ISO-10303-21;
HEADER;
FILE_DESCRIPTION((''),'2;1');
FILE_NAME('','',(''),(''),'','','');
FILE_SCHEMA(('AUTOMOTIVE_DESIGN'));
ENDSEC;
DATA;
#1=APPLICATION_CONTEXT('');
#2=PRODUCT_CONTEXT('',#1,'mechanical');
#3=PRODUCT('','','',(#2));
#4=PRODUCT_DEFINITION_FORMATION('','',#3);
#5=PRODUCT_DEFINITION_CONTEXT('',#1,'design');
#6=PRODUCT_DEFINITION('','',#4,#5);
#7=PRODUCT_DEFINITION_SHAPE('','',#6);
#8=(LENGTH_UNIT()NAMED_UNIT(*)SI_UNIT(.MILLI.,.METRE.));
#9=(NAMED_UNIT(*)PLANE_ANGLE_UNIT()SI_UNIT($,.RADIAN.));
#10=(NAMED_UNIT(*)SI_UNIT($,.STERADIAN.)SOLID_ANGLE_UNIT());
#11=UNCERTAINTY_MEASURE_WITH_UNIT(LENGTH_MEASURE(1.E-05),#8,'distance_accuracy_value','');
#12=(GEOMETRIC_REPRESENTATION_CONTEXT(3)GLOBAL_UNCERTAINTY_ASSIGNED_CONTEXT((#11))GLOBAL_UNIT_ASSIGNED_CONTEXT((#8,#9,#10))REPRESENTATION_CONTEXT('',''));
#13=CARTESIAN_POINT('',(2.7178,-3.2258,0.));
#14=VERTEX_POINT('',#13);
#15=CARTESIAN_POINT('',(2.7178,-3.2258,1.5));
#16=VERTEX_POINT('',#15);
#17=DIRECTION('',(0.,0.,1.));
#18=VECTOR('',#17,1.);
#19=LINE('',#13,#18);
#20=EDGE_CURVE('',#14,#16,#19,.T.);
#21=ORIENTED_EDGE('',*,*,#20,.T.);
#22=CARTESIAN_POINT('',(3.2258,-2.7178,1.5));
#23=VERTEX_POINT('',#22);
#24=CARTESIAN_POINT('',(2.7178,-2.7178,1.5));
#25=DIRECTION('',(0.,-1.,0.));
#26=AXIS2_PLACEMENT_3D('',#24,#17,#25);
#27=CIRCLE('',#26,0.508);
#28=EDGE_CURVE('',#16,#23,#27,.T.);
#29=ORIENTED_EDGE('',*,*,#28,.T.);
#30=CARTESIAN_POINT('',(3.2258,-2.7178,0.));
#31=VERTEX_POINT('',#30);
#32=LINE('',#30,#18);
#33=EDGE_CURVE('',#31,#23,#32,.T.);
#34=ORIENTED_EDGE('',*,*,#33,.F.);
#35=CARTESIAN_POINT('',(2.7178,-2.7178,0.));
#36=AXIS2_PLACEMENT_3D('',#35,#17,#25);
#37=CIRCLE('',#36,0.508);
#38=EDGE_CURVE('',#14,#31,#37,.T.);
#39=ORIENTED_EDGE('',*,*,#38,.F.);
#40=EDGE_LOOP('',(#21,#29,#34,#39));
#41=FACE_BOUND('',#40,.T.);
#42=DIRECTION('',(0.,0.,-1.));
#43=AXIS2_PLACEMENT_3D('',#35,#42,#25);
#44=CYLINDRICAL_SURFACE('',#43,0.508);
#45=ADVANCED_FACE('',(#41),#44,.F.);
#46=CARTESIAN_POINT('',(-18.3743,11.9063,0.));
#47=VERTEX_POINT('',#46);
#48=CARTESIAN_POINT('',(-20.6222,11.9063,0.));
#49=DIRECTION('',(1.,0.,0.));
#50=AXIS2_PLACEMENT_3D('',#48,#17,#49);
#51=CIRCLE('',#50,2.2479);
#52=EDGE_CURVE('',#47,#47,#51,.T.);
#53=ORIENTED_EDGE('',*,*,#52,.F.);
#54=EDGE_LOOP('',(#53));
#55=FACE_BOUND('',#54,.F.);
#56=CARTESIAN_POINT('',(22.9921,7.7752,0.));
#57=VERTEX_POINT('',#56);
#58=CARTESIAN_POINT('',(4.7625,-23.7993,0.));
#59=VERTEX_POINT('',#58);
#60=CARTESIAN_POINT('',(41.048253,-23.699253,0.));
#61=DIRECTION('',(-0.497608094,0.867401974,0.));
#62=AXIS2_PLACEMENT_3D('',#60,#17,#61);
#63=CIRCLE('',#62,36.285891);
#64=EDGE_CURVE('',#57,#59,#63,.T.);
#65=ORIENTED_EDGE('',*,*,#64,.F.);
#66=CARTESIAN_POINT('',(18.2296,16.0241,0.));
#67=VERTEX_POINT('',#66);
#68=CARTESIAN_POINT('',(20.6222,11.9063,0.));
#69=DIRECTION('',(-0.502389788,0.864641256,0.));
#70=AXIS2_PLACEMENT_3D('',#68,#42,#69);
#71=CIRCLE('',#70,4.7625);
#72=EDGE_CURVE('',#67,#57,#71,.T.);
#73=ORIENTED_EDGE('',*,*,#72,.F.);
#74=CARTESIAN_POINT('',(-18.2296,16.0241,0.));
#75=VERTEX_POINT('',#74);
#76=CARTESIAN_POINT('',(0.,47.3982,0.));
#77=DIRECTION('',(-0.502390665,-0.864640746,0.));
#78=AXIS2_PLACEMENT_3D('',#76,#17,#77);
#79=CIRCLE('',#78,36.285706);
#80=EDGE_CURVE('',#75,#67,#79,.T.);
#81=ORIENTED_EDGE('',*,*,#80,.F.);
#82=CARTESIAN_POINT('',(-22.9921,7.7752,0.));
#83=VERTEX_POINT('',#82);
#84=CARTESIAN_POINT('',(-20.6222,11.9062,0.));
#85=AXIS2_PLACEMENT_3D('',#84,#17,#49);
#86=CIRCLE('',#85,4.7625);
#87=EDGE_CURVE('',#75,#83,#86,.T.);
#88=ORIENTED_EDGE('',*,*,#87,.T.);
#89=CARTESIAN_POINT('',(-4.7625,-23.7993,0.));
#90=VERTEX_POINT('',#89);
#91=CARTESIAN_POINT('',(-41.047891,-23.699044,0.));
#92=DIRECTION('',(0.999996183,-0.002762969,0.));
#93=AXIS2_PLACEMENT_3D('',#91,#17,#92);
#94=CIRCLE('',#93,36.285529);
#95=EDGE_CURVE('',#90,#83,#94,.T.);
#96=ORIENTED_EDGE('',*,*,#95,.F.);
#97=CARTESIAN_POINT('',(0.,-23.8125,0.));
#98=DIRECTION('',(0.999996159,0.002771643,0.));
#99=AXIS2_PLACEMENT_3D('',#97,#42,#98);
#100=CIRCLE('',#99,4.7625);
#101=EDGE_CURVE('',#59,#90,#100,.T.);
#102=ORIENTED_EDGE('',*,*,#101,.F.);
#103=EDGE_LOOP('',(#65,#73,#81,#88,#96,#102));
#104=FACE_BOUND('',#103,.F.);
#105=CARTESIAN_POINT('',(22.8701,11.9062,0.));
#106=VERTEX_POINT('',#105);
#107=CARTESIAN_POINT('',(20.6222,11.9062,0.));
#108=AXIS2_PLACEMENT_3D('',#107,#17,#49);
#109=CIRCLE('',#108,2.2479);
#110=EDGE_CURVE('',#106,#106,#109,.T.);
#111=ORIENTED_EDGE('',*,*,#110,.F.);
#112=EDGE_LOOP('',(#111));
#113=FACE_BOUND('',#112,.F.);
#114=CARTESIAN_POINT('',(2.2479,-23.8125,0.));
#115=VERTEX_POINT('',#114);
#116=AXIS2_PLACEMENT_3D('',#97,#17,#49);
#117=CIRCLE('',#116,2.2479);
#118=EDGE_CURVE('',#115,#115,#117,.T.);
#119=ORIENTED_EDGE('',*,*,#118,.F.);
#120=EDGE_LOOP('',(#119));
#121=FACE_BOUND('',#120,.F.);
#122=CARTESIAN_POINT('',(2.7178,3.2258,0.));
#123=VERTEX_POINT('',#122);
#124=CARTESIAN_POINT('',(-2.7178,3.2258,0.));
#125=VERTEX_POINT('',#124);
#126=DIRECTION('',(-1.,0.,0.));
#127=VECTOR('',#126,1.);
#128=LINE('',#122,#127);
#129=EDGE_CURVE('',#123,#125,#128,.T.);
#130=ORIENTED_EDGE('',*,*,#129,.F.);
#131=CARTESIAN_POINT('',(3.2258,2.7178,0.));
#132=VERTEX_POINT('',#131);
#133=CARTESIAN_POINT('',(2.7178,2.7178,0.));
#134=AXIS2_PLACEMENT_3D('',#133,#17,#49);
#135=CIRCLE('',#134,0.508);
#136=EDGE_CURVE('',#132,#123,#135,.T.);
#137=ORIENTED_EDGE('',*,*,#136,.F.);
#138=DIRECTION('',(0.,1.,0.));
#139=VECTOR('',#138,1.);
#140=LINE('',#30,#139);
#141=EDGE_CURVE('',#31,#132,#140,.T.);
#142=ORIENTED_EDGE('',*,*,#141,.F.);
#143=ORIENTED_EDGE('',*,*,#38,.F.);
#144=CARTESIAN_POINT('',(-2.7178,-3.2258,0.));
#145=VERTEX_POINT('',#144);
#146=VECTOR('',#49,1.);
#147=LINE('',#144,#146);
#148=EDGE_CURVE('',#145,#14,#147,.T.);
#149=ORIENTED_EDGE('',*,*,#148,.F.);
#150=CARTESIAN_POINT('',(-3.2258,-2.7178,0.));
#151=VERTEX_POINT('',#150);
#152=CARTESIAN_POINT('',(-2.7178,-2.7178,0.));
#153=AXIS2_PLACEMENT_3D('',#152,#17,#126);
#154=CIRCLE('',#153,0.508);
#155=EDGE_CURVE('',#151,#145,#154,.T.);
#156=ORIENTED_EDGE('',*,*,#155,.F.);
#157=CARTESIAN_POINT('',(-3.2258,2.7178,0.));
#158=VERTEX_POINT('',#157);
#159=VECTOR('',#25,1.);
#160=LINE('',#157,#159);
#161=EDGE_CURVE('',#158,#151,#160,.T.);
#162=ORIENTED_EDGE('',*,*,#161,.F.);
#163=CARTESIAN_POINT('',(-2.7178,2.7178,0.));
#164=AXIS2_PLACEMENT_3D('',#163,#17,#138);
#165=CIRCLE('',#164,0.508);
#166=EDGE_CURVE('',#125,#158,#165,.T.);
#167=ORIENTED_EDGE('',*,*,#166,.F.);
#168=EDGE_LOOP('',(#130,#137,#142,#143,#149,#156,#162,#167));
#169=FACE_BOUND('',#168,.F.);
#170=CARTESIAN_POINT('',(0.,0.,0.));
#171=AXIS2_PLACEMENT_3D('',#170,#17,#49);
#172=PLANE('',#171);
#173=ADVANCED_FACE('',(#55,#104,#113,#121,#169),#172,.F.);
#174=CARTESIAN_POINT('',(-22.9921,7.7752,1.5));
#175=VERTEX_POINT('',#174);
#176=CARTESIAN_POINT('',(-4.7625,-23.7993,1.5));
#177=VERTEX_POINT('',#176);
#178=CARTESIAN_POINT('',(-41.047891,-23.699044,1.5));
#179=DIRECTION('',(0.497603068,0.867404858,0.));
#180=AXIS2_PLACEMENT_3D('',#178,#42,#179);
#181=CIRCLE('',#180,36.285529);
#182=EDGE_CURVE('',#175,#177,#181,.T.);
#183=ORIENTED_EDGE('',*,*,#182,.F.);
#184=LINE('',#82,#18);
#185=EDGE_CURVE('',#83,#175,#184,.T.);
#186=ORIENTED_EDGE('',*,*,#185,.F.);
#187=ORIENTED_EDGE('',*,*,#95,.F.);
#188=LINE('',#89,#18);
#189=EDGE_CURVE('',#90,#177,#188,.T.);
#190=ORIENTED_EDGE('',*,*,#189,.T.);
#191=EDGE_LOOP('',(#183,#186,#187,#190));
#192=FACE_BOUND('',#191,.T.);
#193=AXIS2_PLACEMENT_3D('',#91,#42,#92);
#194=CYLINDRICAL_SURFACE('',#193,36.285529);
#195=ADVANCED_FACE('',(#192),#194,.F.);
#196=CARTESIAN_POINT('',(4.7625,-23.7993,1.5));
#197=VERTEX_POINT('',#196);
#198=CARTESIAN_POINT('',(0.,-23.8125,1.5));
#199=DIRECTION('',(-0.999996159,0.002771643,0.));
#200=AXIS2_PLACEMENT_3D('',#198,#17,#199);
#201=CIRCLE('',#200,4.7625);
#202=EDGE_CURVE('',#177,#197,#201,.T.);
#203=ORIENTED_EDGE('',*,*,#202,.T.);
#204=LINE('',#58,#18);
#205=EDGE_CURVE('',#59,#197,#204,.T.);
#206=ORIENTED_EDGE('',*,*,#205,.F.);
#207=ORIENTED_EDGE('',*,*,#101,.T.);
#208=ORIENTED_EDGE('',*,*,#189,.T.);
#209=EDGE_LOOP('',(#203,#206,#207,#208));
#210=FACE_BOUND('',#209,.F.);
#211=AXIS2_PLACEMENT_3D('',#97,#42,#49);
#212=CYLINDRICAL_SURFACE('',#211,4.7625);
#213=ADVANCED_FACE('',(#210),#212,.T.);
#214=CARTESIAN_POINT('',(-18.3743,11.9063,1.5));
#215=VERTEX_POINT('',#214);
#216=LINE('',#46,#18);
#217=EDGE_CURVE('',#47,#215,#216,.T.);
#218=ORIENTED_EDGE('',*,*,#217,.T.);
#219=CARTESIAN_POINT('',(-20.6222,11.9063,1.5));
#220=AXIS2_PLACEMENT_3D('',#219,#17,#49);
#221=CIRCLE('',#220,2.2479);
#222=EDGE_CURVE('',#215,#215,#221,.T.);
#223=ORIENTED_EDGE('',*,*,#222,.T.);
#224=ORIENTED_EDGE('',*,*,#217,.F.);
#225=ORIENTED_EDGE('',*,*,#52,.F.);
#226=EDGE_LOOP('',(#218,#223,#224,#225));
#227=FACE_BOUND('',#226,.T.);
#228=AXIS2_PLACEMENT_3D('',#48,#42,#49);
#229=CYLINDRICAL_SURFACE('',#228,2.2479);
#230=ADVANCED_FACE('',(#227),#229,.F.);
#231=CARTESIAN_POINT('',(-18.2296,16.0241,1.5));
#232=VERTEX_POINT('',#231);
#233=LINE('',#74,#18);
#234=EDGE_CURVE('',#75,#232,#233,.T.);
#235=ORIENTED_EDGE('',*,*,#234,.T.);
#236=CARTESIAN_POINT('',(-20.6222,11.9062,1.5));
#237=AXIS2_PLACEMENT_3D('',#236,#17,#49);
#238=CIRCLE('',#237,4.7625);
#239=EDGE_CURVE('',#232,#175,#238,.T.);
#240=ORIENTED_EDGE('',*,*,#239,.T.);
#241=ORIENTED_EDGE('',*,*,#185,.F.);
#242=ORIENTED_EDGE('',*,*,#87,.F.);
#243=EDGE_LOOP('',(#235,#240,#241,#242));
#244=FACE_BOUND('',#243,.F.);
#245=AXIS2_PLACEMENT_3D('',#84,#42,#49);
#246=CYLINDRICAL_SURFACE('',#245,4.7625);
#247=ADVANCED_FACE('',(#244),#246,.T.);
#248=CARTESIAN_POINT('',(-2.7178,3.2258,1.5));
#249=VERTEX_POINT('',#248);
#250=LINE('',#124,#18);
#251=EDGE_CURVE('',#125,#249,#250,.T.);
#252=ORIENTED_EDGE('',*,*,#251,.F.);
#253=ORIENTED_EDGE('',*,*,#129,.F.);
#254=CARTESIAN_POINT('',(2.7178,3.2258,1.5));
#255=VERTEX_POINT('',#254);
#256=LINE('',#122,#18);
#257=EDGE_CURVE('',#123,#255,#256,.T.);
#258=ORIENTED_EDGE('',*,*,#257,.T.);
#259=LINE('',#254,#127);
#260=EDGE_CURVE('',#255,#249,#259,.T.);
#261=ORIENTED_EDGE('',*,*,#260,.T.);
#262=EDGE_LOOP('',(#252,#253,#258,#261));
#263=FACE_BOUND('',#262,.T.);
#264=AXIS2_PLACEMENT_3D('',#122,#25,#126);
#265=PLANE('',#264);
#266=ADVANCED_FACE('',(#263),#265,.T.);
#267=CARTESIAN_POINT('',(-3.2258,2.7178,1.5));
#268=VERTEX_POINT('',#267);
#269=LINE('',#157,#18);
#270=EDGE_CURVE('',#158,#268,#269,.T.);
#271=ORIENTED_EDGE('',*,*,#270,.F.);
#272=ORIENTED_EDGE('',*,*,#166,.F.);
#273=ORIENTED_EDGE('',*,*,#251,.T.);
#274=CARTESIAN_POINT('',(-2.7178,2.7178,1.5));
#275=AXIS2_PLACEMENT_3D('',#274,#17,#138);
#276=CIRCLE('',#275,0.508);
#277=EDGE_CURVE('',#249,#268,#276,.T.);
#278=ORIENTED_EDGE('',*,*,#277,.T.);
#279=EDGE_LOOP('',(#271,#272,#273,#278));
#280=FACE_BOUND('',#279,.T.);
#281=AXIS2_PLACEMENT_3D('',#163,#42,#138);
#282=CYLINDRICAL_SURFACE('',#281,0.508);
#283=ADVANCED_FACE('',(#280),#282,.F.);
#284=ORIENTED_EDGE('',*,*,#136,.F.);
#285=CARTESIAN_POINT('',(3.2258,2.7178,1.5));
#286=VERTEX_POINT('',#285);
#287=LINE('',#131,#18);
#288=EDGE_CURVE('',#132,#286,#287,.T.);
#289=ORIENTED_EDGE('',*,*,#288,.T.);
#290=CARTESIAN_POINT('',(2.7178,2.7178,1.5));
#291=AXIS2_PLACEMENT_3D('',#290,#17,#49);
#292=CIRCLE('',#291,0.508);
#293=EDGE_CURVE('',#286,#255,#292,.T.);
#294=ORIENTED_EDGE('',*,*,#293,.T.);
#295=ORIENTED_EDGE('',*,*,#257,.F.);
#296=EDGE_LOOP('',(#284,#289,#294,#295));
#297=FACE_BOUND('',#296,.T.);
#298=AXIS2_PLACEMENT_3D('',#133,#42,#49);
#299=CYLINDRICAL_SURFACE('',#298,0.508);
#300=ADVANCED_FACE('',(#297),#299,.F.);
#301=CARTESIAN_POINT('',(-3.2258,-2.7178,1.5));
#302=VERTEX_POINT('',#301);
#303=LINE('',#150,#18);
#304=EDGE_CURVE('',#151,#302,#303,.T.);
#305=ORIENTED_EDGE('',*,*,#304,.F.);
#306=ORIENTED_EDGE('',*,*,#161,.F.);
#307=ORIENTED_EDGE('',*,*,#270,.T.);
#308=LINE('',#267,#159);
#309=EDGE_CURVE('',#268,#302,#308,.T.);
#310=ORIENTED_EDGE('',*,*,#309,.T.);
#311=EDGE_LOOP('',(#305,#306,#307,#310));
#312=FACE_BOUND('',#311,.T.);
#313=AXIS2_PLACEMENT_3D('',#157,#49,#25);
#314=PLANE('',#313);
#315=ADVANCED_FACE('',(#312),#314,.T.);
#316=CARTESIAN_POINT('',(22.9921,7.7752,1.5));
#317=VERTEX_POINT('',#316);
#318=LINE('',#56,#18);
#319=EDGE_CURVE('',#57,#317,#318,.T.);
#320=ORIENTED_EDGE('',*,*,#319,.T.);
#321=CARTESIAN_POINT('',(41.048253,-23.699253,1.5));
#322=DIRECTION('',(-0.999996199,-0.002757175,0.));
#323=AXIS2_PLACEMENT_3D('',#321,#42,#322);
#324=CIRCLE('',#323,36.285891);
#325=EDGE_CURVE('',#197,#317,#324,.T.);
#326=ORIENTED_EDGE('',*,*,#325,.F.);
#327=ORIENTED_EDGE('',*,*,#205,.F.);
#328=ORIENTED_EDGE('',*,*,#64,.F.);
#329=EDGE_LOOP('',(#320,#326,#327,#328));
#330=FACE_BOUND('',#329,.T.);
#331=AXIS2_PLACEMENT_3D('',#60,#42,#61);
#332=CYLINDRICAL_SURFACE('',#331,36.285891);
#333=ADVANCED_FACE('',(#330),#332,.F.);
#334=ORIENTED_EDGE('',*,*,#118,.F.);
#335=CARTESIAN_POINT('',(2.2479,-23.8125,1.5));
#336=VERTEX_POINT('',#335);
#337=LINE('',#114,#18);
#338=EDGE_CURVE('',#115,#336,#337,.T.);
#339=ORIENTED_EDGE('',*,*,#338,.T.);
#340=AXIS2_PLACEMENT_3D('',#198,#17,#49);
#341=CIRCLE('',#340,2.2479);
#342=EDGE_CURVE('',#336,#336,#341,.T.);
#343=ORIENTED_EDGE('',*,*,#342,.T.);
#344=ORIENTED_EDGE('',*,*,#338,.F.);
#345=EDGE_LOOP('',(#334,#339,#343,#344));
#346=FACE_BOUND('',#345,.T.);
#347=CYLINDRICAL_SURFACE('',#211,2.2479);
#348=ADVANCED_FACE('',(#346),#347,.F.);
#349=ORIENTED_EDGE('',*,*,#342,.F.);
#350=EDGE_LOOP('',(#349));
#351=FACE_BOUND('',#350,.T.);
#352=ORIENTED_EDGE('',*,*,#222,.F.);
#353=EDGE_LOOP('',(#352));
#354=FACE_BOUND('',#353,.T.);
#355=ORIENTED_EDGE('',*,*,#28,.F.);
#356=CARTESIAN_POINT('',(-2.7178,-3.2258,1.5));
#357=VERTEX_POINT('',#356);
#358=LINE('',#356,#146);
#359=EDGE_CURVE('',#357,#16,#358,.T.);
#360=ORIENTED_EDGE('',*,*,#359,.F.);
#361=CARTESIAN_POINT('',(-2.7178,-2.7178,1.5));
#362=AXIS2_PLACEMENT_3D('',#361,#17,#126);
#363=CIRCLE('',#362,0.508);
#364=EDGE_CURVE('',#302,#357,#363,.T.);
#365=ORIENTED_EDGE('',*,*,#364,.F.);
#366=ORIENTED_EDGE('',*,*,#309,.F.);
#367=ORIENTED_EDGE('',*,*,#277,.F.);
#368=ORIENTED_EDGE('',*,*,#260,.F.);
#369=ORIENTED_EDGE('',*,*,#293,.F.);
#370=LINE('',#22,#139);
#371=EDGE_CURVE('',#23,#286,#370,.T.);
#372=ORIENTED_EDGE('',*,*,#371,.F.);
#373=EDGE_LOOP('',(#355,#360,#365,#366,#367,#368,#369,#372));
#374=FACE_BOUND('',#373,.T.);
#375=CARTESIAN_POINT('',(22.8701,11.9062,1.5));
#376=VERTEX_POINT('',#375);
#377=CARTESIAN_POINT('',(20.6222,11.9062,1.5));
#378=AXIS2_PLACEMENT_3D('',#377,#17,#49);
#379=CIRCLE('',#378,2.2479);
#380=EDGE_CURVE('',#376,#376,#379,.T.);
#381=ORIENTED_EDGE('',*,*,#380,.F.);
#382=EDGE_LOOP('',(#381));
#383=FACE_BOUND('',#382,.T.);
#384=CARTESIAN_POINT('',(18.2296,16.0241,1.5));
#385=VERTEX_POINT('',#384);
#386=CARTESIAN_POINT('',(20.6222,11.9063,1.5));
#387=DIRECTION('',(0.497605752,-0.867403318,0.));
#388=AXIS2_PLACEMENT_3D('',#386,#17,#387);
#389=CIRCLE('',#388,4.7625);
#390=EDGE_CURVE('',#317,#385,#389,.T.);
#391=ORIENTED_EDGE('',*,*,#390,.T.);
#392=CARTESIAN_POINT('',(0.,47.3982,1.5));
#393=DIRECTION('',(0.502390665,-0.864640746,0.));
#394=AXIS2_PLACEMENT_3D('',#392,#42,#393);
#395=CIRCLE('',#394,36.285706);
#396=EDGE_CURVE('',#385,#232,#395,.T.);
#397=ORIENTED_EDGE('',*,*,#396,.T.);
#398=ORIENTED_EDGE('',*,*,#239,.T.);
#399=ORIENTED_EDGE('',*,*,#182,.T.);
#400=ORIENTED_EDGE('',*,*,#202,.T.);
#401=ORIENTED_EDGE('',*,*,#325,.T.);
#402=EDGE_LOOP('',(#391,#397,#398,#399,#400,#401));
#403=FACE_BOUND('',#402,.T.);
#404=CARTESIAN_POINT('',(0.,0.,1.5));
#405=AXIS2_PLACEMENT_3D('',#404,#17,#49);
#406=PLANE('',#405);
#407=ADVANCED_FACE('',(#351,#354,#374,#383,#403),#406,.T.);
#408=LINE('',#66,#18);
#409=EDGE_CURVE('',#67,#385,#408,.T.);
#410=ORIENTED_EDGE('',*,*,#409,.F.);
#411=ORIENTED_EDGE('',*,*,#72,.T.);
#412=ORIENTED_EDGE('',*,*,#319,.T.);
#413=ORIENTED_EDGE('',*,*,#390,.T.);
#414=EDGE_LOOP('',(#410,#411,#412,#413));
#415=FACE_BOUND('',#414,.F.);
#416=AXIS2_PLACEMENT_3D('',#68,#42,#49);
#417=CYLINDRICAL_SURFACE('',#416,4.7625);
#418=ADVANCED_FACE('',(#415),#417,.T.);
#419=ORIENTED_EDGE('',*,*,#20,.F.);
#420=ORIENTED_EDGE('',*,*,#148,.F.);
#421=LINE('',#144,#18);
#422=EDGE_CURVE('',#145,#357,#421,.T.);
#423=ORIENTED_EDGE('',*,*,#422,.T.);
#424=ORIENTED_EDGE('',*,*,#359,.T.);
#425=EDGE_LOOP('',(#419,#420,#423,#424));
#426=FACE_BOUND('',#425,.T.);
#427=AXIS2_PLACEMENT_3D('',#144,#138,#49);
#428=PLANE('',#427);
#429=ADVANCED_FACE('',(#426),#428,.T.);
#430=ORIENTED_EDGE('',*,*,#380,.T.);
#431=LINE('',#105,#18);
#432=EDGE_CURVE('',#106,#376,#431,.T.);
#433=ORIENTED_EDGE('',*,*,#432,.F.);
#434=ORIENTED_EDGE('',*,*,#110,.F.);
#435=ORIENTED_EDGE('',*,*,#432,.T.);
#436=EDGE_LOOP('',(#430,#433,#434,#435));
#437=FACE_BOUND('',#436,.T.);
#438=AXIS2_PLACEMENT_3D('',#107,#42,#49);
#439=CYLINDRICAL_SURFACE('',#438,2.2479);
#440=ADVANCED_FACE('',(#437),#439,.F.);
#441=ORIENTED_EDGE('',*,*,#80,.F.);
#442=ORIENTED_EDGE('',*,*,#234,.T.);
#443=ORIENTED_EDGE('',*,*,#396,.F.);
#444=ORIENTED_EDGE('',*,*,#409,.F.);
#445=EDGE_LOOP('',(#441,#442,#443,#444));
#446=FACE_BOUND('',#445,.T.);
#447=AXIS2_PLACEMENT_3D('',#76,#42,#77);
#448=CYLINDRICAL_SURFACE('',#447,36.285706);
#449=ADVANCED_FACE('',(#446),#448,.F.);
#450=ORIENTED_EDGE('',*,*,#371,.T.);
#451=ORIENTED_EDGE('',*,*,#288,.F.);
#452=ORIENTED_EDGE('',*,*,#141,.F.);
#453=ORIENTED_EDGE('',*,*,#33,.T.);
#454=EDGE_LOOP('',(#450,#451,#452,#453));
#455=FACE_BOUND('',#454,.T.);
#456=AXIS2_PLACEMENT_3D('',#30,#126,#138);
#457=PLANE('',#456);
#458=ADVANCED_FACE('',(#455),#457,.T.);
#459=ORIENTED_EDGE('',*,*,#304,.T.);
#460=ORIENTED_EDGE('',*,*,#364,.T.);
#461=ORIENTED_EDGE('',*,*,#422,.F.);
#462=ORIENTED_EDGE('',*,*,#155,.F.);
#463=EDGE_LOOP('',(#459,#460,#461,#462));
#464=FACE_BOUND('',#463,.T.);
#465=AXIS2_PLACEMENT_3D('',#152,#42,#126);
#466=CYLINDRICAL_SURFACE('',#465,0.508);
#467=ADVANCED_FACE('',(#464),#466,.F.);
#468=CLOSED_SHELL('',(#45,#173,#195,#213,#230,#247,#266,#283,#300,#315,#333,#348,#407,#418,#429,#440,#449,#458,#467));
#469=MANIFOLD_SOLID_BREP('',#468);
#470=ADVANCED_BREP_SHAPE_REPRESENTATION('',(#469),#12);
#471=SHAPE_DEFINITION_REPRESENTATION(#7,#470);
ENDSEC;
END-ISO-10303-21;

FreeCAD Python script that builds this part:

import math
import FreeCAD as App
import Part
import Sketcher

V = App.Vector
Q = App.Units.Quantity

doc = App.newDocument("Part")
body = doc.addObject("PartDesign::Body", "Body")

# Sketch on XY plane
sketch1 = doc.addObject("Sketcher::SketchObject", "Sketch")
body.addObject(sketch1)
sketch1.AttachmentSupport = (doc.XY_Plane, [""])
sketch1.MapMode = "FlatFace"
sketch1.addGeometry([
    Part.ArcOfCircle(Part.Circle(V(20.6, 11.9, 0), V(0, 0, 1), 4.8), math.radians(-60), math.radians(120)),  # 0
    Part.ArcOfCircle(Part.Circle(V(0, 47.4, 0), V(0, 0, 1), 36.3), math.radians(-120), math.radians(-60)),  # 1
    Part.ArcOfCircle(Part.Circle(V(-20.6, 11.9, 0), V(0, 0, 1), 4.8), math.radians(60), math.radians(240)),  # 2
    Part.ArcOfCircle(Part.Circle(V(-41, -23.7, 0), V(0, 0, 1), 36.3), math.radians(0), math.radians(60)),  # 3
    Part.ArcOfCircle(Part.Circle(V(0, -23.8, 0), V(0, 0, 1), 4.8), math.radians(180), math.radians(360)),  # 4
    Part.ArcOfCircle(Part.Circle(V(41, -23.7, 0), V(0, 0, 1), 36.3), math.radians(120), math.radians(180)),  # 5
    Part.LineSegment(V(-2.7, 3.2, 0), V(2.7, 3.2, 0)),  # 6
    Part.ArcOfCircle(Part.Circle(V(2.7, 2.7, 0), V(0, 0, 1), 0.5), math.radians(0), math.radians(90)),  # 7
    Part.LineSegment(V(3.2, 2.7, 0), V(3.2, -2.7, 0)),  # 8
    Part.ArcOfCircle(Part.Circle(V(2.7, -2.7, 0), V(0, 0, 1), 0.5), math.radians(-90), math.radians(0)),  # 9
    Part.LineSegment(V(2.7, -3.2, 0), V(-2.7, -3.2, 0)),  # 10
    Part.ArcOfCircle(Part.Circle(V(-2.7, -2.7, 0), V(0, 0, 1), 0.5), math.radians(180), math.radians(270)),  # 11
    Part.LineSegment(V(-3.2, -2.7, 0), V(-3.2, 2.7, 0)),  # 12
    Part.ArcOfCircle(Part.Circle(V(-2.7, 2.7, 0), V(0, 0, 1), 0.5), math.radians(90), math.radians(180)),  # 13
    Part.Circle(V(20.6, 11.9, 0), V(0, 0, 1), 2.2),  # 14
    Part.Circle(V(0, -23.8, 0), V(0, 0, 1), 2.2),  # 15
    Part.Circle(V(-20.6, 11.9, 0), V(0, 0, 1), 2.2),  # 16
], False)
sketch1.addConstraint([
    Sketcher.Constraint("Tangent", 0, 2, 1, 2),
    Sketcher.Constraint("Tangent", 1, 1, 2, 1),
    Sketcher.Constraint("Tangent", 2, 2, 3, 2),
    Sketcher.Constraint("Tangent", 3, 1, 4, 1),
    Sketcher.Constraint("Tangent", 4, 2, 5, 2),
    Sketcher.Constraint("Tangent", 5, 1, 0, 1),
    Sketcher.Constraint("Tangent", 6, 2, 7, 2),
    Sketcher.Constraint("Tangent", 7, 1, 8, 1),
    Sketcher.Constraint("Tangent", 8, 2, 9, 2),
    Sketcher.Constraint("Tangent", 9, 1, 10, 1),
    Sketcher.Constraint("Tangent", 10, 2, 11, 2),
    Sketcher.Constraint("Tangent", 11, 1, 12, 1),
    Sketcher.Constraint("Tangent", 12, 2, 13, 2),
    Sketcher.Constraint("Tangent", 13, 1, 6, 1),
    Sketcher.Constraint("Horizontal", 6),
    Sketcher.Constraint("Vertical", 8),
    Sketcher.Constraint("Horizontal", 10),
    Sketcher.Constraint("Vertical", 12),
    Sketcher.Constraint("Coincident", 14, 3, 0, 3),
    Sketcher.Constraint("Coincident", 15, 3, 4, 3),
    Sketcher.Constraint("Coincident", 16, 3, 2, 3),
    Sketcher.Constraint("Equal", 0, 2),
    Sketcher.Constraint("Equal", 1, 3),
    Sketcher.Constraint("Equal", 2, 4),
    Sketcher.Constraint("Equal", 3, 5),
    Sketcher.Constraint("Equal", 7, 9),
    Sketcher.Constraint("Equal", 9, 11),
    Sketcher.Constraint("Equal", 11, 13),
    Sketcher.Constraint("Equal", 14, 15),
    Sketcher.Constraint("Equal", 15, 16),
    Sketcher.Constraint("Symmetric", 7, 3, 11, 3, -1, 1),
    Sketcher.Constraint("Symmetric", 0, 3, 2, 3, -2),
    Sketcher.Constraint("PointOnObject", 4, 3, -2),
    Sketcher.Constraint("Equal", 10, 8),
    Sketcher.Constraint("Radius", 7, Q("0.02 in")),
    Sketcher.Constraint("Diameter", 14, Q("0.177 in")),
    Sketcher.Constraint("Radius", 0, Q("0.1875 in")),
    Sketcher.Constraint("DistanceX", 6, 1, 6, 2, Q("0.214 in")),
    Sketcher.Constraint("Radius", 1, 36.2857),
    Sketcher.Constraint("DistanceY", -1, 1, 0, 3, Q("0.468752 in")),
    Sketcher.Constraint("DistanceY", 4, 3, -1, 1, Q("0.9375 in")),
    Sketcher.Constraint("DistanceX", -1, 1, 0, 3, Q("0.8119 in")),
])
pad1 = doc.addObject("PartDesign::Pad", "Pad")
body.addObject(pad1)
pad1.Profile = sketch1
pad1.Length = 1.5

doc.recompute()
